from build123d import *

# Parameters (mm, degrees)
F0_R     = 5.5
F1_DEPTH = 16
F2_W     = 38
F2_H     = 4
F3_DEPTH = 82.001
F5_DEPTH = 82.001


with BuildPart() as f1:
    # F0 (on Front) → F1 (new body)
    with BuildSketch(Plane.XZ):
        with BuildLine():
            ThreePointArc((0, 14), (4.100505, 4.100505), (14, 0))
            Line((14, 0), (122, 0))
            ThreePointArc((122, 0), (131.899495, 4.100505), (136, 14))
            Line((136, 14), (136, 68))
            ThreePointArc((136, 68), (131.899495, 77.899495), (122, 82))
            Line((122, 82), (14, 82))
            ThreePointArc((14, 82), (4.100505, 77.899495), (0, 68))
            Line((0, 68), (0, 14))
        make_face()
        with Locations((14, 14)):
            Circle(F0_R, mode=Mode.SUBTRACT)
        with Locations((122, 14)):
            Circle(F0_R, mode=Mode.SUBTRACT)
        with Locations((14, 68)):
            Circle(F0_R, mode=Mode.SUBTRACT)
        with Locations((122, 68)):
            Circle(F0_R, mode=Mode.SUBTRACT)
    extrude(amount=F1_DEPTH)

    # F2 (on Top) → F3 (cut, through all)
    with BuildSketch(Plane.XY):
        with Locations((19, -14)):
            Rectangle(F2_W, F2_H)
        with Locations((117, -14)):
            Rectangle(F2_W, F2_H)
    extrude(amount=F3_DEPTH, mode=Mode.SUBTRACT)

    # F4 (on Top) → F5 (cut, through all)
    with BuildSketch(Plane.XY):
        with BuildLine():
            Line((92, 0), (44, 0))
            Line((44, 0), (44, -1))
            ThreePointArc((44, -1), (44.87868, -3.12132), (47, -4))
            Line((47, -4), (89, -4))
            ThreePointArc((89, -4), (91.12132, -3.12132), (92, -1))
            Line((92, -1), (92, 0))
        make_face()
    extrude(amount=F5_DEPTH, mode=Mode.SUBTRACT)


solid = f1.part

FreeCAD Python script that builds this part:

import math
import FreeCAD as App
import Part
import Sketcher
from FreeCAD import Vector
Q = App.Units.Quantity


def add_polygon(sketch, points):
    """Adds a closed chain of lines whose ends are joined by coincident constraints."""
    first, n = sketch.GeometryCount, len(points)
    for a, b in zip(points, points[1:] + points[:1]):
        sketch.addGeometry(Part.LineSegment(App.Vector(*a, 0), App.Vector(*b, 0)), False)
    for i in range(n):
        sketch.addConstraint(Sketcher.Constraint("Coincident", first + i, 2, first + (i + 1) % n, 1))

doc = App.newDocument("Part")
body = doc.addObject("PartDesign::Body", "Body")

# Sketch on XZ plane
sketch1 = body.newObject("Sketcher::SketchObject", "Sketch")
sketch1.AttachmentSupport = (doc.getObject("XZ_Plane"), [""])
sketch1.MapMode = "FlatFace"
sketch1.addGeometry([
    Part.ArcOfCircle(Part.Circle(Vector(14, 14, 0), Vector(0, 0, 1), 14), math.radians(179.999999), math.radians(270.000001)),  # 0
    Part.LineSegment(Vector(14, 0, 0), Vector(122, 0, 0)),  # 1
    Part.ArcOfCircle(Part.Circle(Vector(122, 14, 0), Vector(0, 0, 1), 14), math.radians(-90.000001), math.radians(0.000001)),  # 2
    Part.LineSegment(Vector(136, 14, 0), Vector(136, 68, 0)),  # 3
    Part.ArcOfCircle(Part.Circle(Vector(122, 68, 0), Vector(0, 0, 1), 14), math.radians(-0.000001), math.radians(90.000001)),  # 4
    Part.LineSegment(Vector(122, 82, 0), Vector(14, 82, 0)),  # 5
    Part.ArcOfCircle(Part.Circle(Vector(14, 68, 0), Vector(0, 0, 1), 14), math.radians(89.999999), math.radians(180.000001)),  # 6
    Part.LineSegment(Vector(0, 68, 0), Vector(0, 14, 0)),  # 7
    Part.Circle(Vector(14, 14, 0), Vector(0, 0, 1), 5.5),  # 8
    Part.Circle(Vector(122, 14, 0), Vector(0, 0, 1), 5.5),  # 9
    Part.Circle(Vector(14, 68, 0), Vector(0, 0, 1), 5.5),  # 10
    Part.Circle(Vector(122, 68, 0), Vector(0, 0, 1), 5.5),  # 11
], False)
sketch1.addConstraint([
    Sketcher.Constraint("Tangent", 0, 2, 1, 1),
    Sketcher.Constraint("Tangent", 1, 2, 2, 1),
    Sketcher.Constraint("Tangent", 2, 2, 3, 1),
    Sketcher.Constraint("Tangent", 3, 2, 4, 1),
    Sketcher.Constraint("Tangent", 4, 2, 5, 1),
    Sketcher.Constraint("Tangent", 5, 2, 6, 1),
    Sketcher.Constraint("Tangent", 6, 2, 7, 1),
    Sketcher.Constraint("Tangent", 7, 2, 0, 1),
    Sketcher.Constraint("Horizontal", 1),
    Sketcher.Constraint("Vertical", 3),
    Sketcher.Constraint("Horizontal", 5),
    Sketcher.Constraint("Vertical", 7),
    Sketcher.Constraint("Coincident", 8, 3, 0, 3),
    Sketcher.Constraint("Coincident", 9, 3, 2, 3),
    Sketcher.Constraint("Coincident", 10, 3, 6, 3),
    Sketcher.Constraint("Coincident", 11, 3, 4, 3),
    Sketcher.Constraint("Equal", 0, 2),
    Sketcher.Constraint("Equal", 2, 4),
    Sketcher.Constraint("Equal", 4, 6),
    Sketcher.Constraint("Equal", 8, 9),
    Sketcher.Constraint("Equal", 9, 10),
    Sketcher.Constraint("Equal", 10, 11),
    Sketcher.Constraint("PointOnObject", 0, 2, -1),
    Sketcher.Constraint("PointOnObject", 6, 2, -2),
    Sketcher.Constraint("Diameter", 8, Q("11 mm")),
    Sketcher.Constraint("Radius", 0, Q("14 mm")),
    Sketcher.Constraint("DistanceX", 1, 1, 1, 2, Q("108 mm")),
    Sketcher.Constraint("DistanceY", 3, 1, 3, 2, Q("54 mm")),
])
pad1 = body.newObject("PartDesign::Pad", "Pad")
pad1.Profile = sketch1
pad1.Length = 16

# Sketch on XY plane
sketch2 = body.newObject("Sketcher::SketchObject", "Sketch001")
sketch2.AttachmentSupport = (doc.getObject("XY_Plane"), [""])
sketch2.MapMode = "FlatFace"
add_polygon(sketch2, [(0, -12), (0, -16), (38, -16), (38, -12)])  # lines 0-3
add_polygon(sketch2, [(98, -12), (98, -16), (136, -16), (136, -12)])  # lines 4-7
sketch2.addConstraint([
    Sketcher.Constraint("Vertical", 0),
    Sketcher.Constraint("Horizontal", 1),
    Sketcher.Constraint("Vertical", 2),
    Sketcher.Constraint("Horizontal", 3),
    Sketcher.Constraint("Vertical", 4),
    Sketcher.Constraint("Horizontal", 5),
    Sketcher.Constraint("Vertical", 6),
    Sketcher.Constraint("Horizontal", 7),
    Sketcher.Constraint("PointOnObject", 0, 2, -2),
    Sketcher.Constraint("Horizontal", 1, 2, 4, 2),
    Sketcher.Constraint("Horizontal", 3, 2, 6, 2),
    Sketcher.Constraint("Equal", 3, 5),
    Sketcher.Constraint("DistanceX", 1, 1, 1, 2, Q("38 mm")),
    Sketcher.Constraint("DistanceY", 0, 2, 0, 1, Q("4 mm")),
    Sketcher.Constraint("DistanceY", 0, 2, -1, 1, Q("16 mm")),
    Sketcher.Constraint("DistanceX", -1, 1, 4, 2, Q("98 mm")),
])
pocket1 = body.newObject("PartDesign::Pocket", "Pocket")
pocket1.Profile = sketch2
pocket1.Type = "ThroughAll"
pocket1.Reversed = True

# Sketch on XY plane
sketch3 = body.newObject("Sketcher::SketchObject", "Sketch002")
sketch3.AttachmentSupport = (doc.getObject("XY_Plane"), [""])
sketch3.MapMode = "FlatFace"
sketch3.addGeometry([
    Part.LineSegment(Vector(92, 0, 0), Vector(44, 0, 0)),  # 0
    Part.LineSegment(Vector(44, 0, 0), Vector(44, -1, 0)),  # 1
    Part.ArcOfCircle(Part.Circle(Vector(47.000001, -0.999999, 0), Vector(0, 0, 1), 3.000001), math.radians(-179.999978), math.radians(-90.000022)),  # 2
    Part.LineSegment(Vector(47, -4, 0), Vector(89, -4, 0)),  # 3
    Part.ArcOfCircle(Part.Circle(Vector(88.999999, -0.999999, 0), Vector(0, 0, 1), 3.000001), math.radians(-89.999978), math.radians(-0.000022)),  # 4
    Part.LineSegment(Vector(92, -1, 0), Vector(92, 0, 0)),  # 5
], False)
sketch3.addConstraint([
    Sketcher.Constraint("Coincident", 0, 2, 1, 1),
    Sketcher.Constraint("Tangent", 1, 2, 2, 1),
    Sketcher.Constraint("Tangent", 2, 2, 3, 1),
    Sketcher.Constraint("Tangent", 3, 2, 4, 1),
    Sketcher.Constraint("Tangent", 4, 2, 5, 1),
    Sketcher.Constraint("Coincident", 5, 2, 0, 1),
    Sketcher.Constraint("Horizontal", 0),
    Sketcher.Constraint("Vertical", 1),
    Sketcher.Constraint("Horizontal", 3),
    Sketcher.Constraint("Vertical", 5),
    Sketcher.Constraint("Equal", 2, 4),
    Sketcher.Constraint("PointOnObject", 0, 2, -1),
    Sketcher.Constraint("Radius", 2, Q("3.000001 mm")),
    Sketcher.Constraint("DistanceX", 0, 2, 0, 1, Q("48 mm")),
    Sketcher.Constraint("DistanceY", 1, 2, 1, 1, Q("1 mm")),
    Sketcher.Constraint("DistanceX", -1, 1, 2, 3, Q("47.000001 mm")),
])
pocket2 = body.newObject("PartDesign::Pocket", "Pocket001")
pocket2.Profile = sketch3
pocket2.Type = "ThroughAll"
pocket2.Reversed = True

doc.recompute()
